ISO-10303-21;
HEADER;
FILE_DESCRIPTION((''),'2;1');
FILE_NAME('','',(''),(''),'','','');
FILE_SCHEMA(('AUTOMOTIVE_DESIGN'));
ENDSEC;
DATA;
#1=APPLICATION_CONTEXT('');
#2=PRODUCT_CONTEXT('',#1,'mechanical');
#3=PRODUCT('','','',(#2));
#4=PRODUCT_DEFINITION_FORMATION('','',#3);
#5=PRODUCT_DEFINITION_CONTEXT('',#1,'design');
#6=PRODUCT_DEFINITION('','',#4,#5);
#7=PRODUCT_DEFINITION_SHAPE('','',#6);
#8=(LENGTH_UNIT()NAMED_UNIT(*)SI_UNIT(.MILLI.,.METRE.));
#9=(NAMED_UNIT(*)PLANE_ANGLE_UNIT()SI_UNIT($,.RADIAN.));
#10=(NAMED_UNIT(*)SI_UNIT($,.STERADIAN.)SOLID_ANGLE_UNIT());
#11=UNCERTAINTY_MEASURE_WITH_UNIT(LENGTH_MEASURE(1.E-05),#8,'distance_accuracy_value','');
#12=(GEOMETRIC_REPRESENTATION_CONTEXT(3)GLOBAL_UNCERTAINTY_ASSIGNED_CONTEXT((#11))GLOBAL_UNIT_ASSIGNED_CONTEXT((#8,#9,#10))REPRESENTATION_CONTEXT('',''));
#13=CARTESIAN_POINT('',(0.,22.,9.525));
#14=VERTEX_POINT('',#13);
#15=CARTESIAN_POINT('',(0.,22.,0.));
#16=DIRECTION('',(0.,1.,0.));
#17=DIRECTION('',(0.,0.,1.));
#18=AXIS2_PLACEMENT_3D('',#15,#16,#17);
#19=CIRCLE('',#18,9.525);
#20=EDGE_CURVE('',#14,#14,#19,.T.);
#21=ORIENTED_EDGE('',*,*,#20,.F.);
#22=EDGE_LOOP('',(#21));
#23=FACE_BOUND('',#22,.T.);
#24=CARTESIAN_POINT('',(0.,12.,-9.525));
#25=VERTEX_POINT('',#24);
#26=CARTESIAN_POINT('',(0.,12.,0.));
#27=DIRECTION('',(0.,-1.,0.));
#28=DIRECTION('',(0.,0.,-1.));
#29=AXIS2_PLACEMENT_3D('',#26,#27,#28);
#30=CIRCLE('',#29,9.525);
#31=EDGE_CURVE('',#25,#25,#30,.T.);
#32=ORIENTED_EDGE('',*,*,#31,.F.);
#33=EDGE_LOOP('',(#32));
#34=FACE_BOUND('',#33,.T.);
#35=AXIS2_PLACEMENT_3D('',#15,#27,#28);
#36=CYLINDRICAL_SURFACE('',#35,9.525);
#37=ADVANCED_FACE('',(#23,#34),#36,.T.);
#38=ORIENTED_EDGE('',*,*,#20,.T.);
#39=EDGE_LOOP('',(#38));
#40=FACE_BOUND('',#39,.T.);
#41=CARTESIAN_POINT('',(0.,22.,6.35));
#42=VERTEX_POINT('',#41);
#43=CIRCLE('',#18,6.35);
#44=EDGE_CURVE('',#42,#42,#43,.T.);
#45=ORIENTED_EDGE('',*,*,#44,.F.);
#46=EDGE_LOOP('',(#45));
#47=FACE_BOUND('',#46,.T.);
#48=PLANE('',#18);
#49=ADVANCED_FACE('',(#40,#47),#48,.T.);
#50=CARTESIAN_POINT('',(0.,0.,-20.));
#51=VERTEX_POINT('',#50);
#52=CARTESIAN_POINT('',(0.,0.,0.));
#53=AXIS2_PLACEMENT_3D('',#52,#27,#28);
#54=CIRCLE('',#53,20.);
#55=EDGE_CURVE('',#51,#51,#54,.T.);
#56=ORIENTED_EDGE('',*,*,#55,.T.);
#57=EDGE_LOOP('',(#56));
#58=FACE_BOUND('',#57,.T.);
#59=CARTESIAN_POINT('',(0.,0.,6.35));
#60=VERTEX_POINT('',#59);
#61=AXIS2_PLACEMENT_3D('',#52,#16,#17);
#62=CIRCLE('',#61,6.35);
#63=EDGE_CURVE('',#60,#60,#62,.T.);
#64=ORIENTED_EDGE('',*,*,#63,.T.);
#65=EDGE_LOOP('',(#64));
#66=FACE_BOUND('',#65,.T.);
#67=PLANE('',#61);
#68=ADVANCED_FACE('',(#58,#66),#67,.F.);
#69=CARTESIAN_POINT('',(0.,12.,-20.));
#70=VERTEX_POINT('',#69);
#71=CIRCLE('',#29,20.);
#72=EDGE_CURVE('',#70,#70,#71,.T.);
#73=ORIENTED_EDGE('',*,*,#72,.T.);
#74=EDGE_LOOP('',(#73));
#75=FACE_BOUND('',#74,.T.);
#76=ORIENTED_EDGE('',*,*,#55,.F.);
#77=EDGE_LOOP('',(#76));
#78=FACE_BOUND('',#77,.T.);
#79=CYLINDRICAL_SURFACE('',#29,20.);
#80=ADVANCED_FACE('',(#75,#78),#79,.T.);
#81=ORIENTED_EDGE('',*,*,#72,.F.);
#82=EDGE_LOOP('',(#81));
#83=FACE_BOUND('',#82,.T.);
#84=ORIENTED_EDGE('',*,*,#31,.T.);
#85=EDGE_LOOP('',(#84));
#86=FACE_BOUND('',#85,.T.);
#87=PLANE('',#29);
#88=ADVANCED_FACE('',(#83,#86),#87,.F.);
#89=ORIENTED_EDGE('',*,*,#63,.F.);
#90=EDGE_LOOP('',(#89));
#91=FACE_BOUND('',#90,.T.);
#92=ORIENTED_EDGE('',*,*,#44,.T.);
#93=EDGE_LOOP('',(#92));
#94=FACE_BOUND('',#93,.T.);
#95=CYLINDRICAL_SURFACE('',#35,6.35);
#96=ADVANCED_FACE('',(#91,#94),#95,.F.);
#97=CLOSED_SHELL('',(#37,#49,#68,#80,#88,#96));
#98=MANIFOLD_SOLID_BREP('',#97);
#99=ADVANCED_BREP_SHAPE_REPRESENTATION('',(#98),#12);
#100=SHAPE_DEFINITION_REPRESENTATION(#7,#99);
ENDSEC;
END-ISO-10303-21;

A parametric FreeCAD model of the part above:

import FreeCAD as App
import Part
import Sketcher
from FreeCAD import Vector
Q = App.Units.Quantity

doc = App.newDocument("Part")
body = doc.addObject("PartDesign::Body", "Body")

# Sketch on XZ plane
sketch1 = doc.addObject("Sketcher::SketchObject", "Sketch")
body.addObject(sketch1)
sketch1.AttachmentSupport = (doc.XZ_Plane, [""])
sketch1.MapMode = "FlatFace"
sketch1.addGeometry([
    Part.Circle(Vector(0, 0, 0), Vector(0, 0, 1), 9.525),
    Part.Circle(Vector(0, 0, 0), Vector(0, 0, 1), 6.35),
], False)
sketch1.addConstraint([
    Sketcher.Constraint("Coincident", 0, 3, -1, 1),
    Sketcher.Constraint("Coincident", 1, 3, -1, 1),
    Sketcher.Constraint("Diameter", 1, Q("12.7 mm")),
    Sketcher.Constraint("Diameter", 0, Q("19.05 mm")),
])
pad1 = doc.addObject("PartDesign::Pad", "Pad")
body.addObject(pad1)
pad1.Profile = sketch1
pad1.Length = 22
pad1.Reversed = True

# Sketch on XZ plane
sketch2 = doc.addObject("Sketcher::SketchObject", "Sketch001")
body.addObject(sketch2)
sketch2.AttachmentSupport = (doc.XZ_Plane, [""])
sketch2.MapMode = "FlatFace"
sketch2.addGeometry([
    Part.Circle(Vector(0, 0, 0), Vector(0, 0, 1), 20),
    Part.Circle(Vector(0, 0, 0), Vector(0, 0, 1), 9.525),
], False)
sketch2.addConstraint([
    Sketcher.Constraint("Coincident", 0, 3, -1, 1),
    Sketcher.Constraint("Coincident", 1, 3, -1, 1),
    Sketcher.Constraint("Diameter", 0, Q("40 mm")),
    Sketcher.Constraint("Diameter", 1, Q("19.05 mm")),
])
pad2 = doc.addObject("PartDesign::Pad", "Pad001")
body.addObject(pad2)
pad2.Profile = sketch2
pad2.Length = 12
pad2.Reversed = True

doc.recompute()
